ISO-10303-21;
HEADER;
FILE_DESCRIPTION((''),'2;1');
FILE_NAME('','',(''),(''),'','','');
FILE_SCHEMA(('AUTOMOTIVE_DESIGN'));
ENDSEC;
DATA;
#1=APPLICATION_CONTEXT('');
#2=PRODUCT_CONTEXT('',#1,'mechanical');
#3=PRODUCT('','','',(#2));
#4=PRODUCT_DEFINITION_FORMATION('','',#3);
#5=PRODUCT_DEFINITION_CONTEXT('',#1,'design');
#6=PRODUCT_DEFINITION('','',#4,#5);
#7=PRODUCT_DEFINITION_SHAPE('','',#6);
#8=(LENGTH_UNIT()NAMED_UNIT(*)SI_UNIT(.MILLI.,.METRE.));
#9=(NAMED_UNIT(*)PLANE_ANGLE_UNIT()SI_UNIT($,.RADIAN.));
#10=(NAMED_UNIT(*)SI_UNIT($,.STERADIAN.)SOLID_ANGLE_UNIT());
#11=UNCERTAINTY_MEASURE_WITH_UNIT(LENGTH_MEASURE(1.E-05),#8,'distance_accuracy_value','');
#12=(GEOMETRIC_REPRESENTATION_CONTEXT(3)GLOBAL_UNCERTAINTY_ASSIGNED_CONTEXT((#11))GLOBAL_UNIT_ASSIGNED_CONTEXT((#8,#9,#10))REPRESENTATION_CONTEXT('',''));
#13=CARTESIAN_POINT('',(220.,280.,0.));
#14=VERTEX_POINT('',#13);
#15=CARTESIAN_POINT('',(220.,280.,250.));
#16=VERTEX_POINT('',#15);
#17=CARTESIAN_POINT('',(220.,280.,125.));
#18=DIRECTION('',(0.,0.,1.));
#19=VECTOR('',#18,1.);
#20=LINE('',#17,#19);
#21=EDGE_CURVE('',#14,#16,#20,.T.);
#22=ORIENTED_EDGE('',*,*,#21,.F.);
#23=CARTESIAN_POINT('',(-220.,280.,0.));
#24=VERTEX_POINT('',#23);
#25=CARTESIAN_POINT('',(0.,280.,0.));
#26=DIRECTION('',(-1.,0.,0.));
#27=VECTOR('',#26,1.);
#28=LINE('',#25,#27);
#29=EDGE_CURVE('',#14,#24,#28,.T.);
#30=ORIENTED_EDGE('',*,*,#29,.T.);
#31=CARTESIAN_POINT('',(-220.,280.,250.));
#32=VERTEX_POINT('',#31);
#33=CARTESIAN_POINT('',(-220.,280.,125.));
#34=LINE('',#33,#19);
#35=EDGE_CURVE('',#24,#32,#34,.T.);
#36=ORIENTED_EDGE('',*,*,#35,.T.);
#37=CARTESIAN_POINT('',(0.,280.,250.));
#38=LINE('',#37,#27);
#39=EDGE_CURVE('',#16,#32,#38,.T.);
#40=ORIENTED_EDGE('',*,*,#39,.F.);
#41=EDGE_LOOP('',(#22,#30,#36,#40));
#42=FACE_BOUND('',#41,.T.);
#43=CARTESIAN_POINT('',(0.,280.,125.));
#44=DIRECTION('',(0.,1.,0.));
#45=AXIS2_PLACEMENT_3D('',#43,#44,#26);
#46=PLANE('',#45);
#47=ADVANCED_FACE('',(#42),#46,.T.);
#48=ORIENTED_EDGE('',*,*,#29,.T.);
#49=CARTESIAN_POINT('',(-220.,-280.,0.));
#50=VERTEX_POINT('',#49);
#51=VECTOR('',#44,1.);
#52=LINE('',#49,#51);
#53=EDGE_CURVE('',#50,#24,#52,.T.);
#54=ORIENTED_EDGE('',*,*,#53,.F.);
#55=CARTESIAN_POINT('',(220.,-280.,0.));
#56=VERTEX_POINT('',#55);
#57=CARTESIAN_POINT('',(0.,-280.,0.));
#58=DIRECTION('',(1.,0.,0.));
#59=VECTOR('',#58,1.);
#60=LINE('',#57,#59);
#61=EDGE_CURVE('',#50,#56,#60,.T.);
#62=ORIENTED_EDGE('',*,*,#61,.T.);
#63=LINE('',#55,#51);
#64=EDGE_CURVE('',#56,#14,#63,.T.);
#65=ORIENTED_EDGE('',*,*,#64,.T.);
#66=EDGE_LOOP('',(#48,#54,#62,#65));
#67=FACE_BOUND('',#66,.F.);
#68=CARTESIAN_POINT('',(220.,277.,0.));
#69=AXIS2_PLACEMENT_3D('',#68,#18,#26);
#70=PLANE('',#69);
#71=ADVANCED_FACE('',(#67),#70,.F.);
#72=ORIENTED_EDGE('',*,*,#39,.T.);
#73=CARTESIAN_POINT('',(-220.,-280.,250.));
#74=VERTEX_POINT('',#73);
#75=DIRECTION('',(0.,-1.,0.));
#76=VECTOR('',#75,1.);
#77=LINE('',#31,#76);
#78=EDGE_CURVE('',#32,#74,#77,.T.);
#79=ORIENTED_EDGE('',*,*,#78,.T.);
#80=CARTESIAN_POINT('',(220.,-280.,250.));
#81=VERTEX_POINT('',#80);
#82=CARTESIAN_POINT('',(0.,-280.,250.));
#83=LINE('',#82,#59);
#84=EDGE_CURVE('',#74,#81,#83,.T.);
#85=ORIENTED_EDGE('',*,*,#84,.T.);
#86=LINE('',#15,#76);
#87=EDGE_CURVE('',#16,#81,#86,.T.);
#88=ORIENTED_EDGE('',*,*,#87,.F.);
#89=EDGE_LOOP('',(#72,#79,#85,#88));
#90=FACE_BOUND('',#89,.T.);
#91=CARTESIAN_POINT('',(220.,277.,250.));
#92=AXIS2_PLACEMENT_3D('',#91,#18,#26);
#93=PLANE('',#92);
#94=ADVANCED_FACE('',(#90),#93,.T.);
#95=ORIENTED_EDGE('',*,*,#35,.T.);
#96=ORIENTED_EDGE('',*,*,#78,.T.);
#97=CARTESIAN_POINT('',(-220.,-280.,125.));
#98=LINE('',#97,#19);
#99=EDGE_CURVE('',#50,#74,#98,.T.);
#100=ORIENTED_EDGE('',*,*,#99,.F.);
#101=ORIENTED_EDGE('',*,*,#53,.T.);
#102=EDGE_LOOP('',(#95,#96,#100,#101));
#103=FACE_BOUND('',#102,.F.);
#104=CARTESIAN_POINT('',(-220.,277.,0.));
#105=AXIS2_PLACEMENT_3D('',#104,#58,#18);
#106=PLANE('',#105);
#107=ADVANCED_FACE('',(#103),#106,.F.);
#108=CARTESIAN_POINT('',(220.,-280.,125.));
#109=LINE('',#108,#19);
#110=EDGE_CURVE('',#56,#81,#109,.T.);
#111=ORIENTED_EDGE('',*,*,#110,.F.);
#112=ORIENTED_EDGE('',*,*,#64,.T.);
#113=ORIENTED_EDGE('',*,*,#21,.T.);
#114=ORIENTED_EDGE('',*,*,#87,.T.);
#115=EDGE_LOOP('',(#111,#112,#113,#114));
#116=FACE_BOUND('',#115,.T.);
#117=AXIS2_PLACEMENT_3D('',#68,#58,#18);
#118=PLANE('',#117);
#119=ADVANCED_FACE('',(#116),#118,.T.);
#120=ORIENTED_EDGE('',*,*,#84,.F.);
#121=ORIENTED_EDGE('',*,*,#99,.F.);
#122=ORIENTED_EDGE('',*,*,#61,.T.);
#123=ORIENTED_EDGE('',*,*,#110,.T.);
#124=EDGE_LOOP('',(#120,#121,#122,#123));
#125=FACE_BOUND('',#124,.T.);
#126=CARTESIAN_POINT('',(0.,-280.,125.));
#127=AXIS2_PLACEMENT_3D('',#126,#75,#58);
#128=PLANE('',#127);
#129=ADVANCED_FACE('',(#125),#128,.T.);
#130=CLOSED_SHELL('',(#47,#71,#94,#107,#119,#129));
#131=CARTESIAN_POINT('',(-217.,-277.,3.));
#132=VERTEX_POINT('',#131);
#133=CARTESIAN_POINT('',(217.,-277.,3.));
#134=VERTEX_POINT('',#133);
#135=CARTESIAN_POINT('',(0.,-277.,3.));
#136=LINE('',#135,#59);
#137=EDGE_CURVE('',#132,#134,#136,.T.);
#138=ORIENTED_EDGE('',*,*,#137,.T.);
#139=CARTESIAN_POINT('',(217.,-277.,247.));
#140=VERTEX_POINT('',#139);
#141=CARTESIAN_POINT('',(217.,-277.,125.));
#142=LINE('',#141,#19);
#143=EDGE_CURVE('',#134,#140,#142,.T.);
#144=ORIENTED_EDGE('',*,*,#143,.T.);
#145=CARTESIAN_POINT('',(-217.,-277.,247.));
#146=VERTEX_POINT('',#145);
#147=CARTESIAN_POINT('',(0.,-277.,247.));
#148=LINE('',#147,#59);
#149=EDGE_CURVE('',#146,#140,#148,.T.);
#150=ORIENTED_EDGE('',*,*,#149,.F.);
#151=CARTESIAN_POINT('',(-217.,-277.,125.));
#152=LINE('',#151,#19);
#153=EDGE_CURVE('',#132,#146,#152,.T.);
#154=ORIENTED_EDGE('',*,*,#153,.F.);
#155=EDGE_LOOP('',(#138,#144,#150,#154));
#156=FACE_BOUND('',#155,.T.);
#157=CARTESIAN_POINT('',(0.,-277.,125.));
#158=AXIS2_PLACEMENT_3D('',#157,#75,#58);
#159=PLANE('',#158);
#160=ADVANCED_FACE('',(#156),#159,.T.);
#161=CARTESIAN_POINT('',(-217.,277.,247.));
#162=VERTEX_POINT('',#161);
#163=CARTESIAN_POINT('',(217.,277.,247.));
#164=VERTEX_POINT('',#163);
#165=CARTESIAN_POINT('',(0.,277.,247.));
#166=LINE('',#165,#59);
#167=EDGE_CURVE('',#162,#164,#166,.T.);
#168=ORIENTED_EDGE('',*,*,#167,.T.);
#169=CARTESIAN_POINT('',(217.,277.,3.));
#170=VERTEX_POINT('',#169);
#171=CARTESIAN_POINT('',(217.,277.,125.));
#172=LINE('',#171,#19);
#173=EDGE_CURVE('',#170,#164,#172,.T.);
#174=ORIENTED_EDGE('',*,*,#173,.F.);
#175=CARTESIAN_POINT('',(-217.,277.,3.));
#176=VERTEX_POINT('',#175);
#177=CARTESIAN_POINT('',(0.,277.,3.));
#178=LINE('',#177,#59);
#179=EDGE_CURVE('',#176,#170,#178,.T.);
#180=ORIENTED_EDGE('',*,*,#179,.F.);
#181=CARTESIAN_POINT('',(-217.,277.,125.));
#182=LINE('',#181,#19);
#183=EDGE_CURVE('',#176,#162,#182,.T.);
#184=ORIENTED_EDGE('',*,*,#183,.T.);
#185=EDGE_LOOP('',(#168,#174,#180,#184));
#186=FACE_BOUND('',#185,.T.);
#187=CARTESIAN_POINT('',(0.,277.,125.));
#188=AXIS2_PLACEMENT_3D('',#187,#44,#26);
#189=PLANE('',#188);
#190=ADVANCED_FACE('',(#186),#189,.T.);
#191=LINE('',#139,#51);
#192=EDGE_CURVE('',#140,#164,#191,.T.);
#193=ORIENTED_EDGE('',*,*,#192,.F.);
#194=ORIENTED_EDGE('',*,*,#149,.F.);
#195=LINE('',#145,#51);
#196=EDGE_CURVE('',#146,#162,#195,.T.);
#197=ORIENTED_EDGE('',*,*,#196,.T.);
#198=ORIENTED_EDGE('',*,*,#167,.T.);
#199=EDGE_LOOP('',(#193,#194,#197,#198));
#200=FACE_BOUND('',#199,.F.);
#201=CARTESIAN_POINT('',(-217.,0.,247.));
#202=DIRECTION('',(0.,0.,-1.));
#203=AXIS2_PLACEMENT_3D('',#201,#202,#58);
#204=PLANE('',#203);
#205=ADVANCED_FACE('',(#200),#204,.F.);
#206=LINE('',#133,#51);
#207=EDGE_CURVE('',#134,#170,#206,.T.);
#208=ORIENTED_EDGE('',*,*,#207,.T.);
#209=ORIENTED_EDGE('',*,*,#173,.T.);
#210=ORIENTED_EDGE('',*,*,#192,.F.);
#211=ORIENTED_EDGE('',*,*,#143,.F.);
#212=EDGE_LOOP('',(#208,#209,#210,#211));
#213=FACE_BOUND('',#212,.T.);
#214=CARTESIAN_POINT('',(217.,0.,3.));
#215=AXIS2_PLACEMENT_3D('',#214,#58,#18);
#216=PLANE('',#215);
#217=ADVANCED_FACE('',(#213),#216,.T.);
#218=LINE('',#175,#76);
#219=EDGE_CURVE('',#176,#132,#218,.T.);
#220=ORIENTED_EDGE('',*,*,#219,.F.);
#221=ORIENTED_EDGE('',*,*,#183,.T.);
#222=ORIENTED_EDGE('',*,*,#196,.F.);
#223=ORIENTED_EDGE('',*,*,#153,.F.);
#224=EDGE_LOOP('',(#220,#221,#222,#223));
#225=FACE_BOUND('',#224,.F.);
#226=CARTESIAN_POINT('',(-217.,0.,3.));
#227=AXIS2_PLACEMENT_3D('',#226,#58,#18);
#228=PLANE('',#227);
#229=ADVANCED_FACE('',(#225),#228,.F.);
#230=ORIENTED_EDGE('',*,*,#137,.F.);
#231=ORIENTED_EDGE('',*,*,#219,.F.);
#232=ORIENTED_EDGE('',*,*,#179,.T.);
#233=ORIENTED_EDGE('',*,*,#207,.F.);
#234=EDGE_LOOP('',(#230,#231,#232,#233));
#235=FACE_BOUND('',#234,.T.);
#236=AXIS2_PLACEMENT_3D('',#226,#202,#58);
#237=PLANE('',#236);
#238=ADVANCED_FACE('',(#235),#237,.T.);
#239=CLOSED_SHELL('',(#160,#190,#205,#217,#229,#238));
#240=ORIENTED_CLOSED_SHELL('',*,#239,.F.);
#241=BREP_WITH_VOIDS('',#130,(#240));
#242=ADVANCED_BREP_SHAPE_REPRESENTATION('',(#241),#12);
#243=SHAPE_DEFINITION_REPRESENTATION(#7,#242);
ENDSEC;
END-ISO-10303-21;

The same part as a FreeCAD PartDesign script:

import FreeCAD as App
import Part
import Sketcher

V = App.Vector

doc = App.newDocument("Part")
body = doc.addObject("PartDesign::Body", "Body")

sketch1 = body.newObject("Sketcher::SketchObject", "Sketch")
sketch1.AttachmentSupport = (doc.getObject("XZ_Plane"), [""])
sketch1.MapMode = "FlatFace"
sketch1.addGeometry(Part.LineSegment(V(-220, 250, 0), V(-220, 0, 0)), False)
sketch1.addGeometry(Part.LineSegment(V(-220, 0, 0), V(220, 0, 0)), False)
sketch1.addGeometry(Part.LineSegment(V(220, 0, 0), V(220, 250, 0)), False)
sketch1.addGeometry(Part.LineSegment(V(220, 250, 0), V(-220, 250, 0)), False)
sketch1.addGeometry(Part.LineSegment(V(217, 3, 0), V(-217, 3, 0)), False)
sketch1.addGeometry(Part.LineSegment(V(-217, 3, 0), V(-217, 247, 0)), False)
sketch1.addGeometry(Part.LineSegment(V(-217, 247, 0), V(217, 247, 0)), False)
sketch1.addGeometry(Part.LineSegment(V(217, 247, 0), V(217, 3, 0)), False)
sketch1.addConstraint(Sketcher.Constraint("Coincident", 0, 2, 1, 1))
sketch1.addConstraint(Sketcher.Constraint("Coincident", 1, 2, 2, 1))
sketch1.addConstraint(Sketcher.Constraint("Coincident", 2, 2, 3, 1))
sketch1.addConstraint(Sketcher.Constraint("Coincident", 3, 2, 0, 1))
sketch1.addConstraint(Sketcher.Constraint("Coincident", 4, 2, 5, 1))
sketch1.addConstraint(Sketcher.Constraint("Coincident", 5, 2, 6, 1))
sketch1.addConstraint(Sketcher.Constraint("Coincident", 6, 2, 7, 1))
sketch1.addConstraint(Sketcher.Constraint("Coincident", 7, 2, 4, 1))
sketch1.addConstraint(Sketcher.Constraint("Vertical", 0))
sketch1.addConstraint(Sketcher.Constraint("Horizontal", 1))
sketch1.addConstraint(Sketcher.Constraint("Vertical", 2))
sketch1.addConstraint(Sketcher.Constraint("Horizontal", 3))
sketch1.addConstraint(Sketcher.Constraint("Horizontal", 4))
sketch1.addConstraint(Sketcher.Constraint("Vertical", 5))
sketch1.addConstraint(Sketcher.Constraint("Horizontal", 6))
sketch1.addConstraint(Sketcher.Constraint("Vertical", 7))
sketch1.addConstraint(Sketcher.Constraint("Symmetric", 0, 2, 1, 2, -1, 1))
sketch1.addConstraint(Sketcher.Constraint("DistanceX", 1, 1, 1, 2, 440.0))
sketch1.addConstraint(Sketcher.Constraint("DistanceX", 4, 2, 4, 1, 434.0))
sketch1.addConstraint(Sketcher.Constraint("DistanceY", 0, 2, 0, 1, 250.0))
sketch1.addConstraint(Sketcher.Constraint("DistanceY", 5, 1, 5, 2, 244.0))
sketch1.addConstraint(Sketcher.Constraint("DistanceX", 4, 2, -1, 1, 217.0))
sketch1.addConstraint(Sketcher.Constraint("DistanceY", -1, 1, 4, 2, 3.0))
pad1 = body.newObject("PartDesign::Pad", "Pad")
pad1.Profile = sketch1
pad1.Length = 554
pad1.Midplane = True

sketch2 = body.newObject("Sketcher::SketchObject", "Sketch001")
sketch2.AttachmentSupport = (doc.getObject("XZ_Plane"), [""])
sketch2.MapMode = "FlatFace"
sketch2.AttachmentOffset = App.Placement(V(0, 0, 277), App.Rotation())
sketch2.addGeometry(Part.LineSegment(V(-220, 250, 0), V(-220, 0, 0)), False)
sketch2.addGeometry(Part.LineSegment(V(-220, 0, 0), V(220, 0, 0)), False)
sketch2.addGeometry(Part.LineSegment(V(220, 0, 0), V(220, 250, 0)), False)
sketch2.addGeometry(Part.LineSegment(V(220, 250, 0), V(-220, 250, 0)), False)
sketch2.addConstraint(Sketcher.Constraint("Coincident", 0, 2, 1, 1))
sketch2.addConstraint(Sketcher.Constraint("Coincident", 1, 2, 2, 1))
sketch2.addConstraint(Sketcher.Constraint("Coincident", 2, 2, 3, 1))
sketch2.addConstraint(Sketcher.Constraint("Coincident", 3, 2, 0, 1))
sketch2.addConstraint(Sketcher.Constraint("Vertical", 0))
sketch2.addConstraint(Sketcher.Constraint("Horizontal", 1))
sketch2.addConstraint(Sketcher.Constraint("Vertical", 2))
sketch2.addConstraint(Sketcher.Constraint("Horizontal", 3))
sketch2.addConstraint(Sketcher.Constraint("Symmetric", 0, 2, 1, 2, -1, 1))
sketch2.addConstraint(Sketcher.Constraint("DistanceX", 1, 1, 1, 2, 440.0))
sketch2.addConstraint(Sketcher.Constraint("DistanceY", 0, 2, 0, 1, 250.0))
pad2 = body.newObject("PartDesign::Pad", "Pad001")
pad2.Profile = sketch2
pad2.Length = 3

sketch3 = body.newObject("Sketcher::SketchObject", "Sketch002")
sketch3.AttachmentSupport = (doc.getObject("XZ_Plane"), [""])
sketch3.MapMode = "FlatFace"
sketch3.AttachmentOffset = App.Placement(V(0, 0, -277), App.Rotation())
sketch3.addGeometry(Part.LineSegment(V(220, 250, 0), V(220, 0, 0)), False)
sketch3.addGeometry(Part.LineSegment(V(220, 0, 0), V(-220, 0, 0)), False)
sketch3.addGeometry(Part.LineSegment(V(-220, 0, 0), V(-220, 250, 0)), False)
sketch3.addGeometry(Part.LineSegment(V(-220, 250, 0), V(220, 250, 0)), False)
sketch3.addConstraint(Sketcher.Constraint("Coincident", 0, 2, 1, 1))
sketch3.addConstraint(Sketcher.Constraint("Coincident", 1, 2, 2, 1))
sketch3.addConstraint(Sketcher.Constraint("Coincident", 2, 2, 3, 1))
sketch3.addConstraint(Sketcher.Constraint("Coincident", 3, 2, 0, 1))
sketch3.addConstraint(Sketcher.Constraint("Vertical", 0))
sketch3.addConstraint(Sketcher.Constraint("Horizontal", 1))
sketch3.addConstraint(Sketcher.Constraint("Vertical", 2))
sketch3.addConstraint(Sketcher.Constraint("Horizontal", 3))
sketch3.addConstraint(Sketcher.Constraint("Symmetric", 0, 2, 1, 2, -1, 1))
sketch3.addConstraint(Sketcher.Constraint("DistanceX", 1, 2, 1, 1, 440.0))
sketch3.addConstraint(Sketcher.Constraint("DistanceY", 0, 2, 0, 1, 250.0))
pad3 = body.newObject("PartDesign::Pad", "Pad002")
pad3.Profile = sketch3
pad3.Length = 3
pad3.Reversed = True

doc.recompute()
